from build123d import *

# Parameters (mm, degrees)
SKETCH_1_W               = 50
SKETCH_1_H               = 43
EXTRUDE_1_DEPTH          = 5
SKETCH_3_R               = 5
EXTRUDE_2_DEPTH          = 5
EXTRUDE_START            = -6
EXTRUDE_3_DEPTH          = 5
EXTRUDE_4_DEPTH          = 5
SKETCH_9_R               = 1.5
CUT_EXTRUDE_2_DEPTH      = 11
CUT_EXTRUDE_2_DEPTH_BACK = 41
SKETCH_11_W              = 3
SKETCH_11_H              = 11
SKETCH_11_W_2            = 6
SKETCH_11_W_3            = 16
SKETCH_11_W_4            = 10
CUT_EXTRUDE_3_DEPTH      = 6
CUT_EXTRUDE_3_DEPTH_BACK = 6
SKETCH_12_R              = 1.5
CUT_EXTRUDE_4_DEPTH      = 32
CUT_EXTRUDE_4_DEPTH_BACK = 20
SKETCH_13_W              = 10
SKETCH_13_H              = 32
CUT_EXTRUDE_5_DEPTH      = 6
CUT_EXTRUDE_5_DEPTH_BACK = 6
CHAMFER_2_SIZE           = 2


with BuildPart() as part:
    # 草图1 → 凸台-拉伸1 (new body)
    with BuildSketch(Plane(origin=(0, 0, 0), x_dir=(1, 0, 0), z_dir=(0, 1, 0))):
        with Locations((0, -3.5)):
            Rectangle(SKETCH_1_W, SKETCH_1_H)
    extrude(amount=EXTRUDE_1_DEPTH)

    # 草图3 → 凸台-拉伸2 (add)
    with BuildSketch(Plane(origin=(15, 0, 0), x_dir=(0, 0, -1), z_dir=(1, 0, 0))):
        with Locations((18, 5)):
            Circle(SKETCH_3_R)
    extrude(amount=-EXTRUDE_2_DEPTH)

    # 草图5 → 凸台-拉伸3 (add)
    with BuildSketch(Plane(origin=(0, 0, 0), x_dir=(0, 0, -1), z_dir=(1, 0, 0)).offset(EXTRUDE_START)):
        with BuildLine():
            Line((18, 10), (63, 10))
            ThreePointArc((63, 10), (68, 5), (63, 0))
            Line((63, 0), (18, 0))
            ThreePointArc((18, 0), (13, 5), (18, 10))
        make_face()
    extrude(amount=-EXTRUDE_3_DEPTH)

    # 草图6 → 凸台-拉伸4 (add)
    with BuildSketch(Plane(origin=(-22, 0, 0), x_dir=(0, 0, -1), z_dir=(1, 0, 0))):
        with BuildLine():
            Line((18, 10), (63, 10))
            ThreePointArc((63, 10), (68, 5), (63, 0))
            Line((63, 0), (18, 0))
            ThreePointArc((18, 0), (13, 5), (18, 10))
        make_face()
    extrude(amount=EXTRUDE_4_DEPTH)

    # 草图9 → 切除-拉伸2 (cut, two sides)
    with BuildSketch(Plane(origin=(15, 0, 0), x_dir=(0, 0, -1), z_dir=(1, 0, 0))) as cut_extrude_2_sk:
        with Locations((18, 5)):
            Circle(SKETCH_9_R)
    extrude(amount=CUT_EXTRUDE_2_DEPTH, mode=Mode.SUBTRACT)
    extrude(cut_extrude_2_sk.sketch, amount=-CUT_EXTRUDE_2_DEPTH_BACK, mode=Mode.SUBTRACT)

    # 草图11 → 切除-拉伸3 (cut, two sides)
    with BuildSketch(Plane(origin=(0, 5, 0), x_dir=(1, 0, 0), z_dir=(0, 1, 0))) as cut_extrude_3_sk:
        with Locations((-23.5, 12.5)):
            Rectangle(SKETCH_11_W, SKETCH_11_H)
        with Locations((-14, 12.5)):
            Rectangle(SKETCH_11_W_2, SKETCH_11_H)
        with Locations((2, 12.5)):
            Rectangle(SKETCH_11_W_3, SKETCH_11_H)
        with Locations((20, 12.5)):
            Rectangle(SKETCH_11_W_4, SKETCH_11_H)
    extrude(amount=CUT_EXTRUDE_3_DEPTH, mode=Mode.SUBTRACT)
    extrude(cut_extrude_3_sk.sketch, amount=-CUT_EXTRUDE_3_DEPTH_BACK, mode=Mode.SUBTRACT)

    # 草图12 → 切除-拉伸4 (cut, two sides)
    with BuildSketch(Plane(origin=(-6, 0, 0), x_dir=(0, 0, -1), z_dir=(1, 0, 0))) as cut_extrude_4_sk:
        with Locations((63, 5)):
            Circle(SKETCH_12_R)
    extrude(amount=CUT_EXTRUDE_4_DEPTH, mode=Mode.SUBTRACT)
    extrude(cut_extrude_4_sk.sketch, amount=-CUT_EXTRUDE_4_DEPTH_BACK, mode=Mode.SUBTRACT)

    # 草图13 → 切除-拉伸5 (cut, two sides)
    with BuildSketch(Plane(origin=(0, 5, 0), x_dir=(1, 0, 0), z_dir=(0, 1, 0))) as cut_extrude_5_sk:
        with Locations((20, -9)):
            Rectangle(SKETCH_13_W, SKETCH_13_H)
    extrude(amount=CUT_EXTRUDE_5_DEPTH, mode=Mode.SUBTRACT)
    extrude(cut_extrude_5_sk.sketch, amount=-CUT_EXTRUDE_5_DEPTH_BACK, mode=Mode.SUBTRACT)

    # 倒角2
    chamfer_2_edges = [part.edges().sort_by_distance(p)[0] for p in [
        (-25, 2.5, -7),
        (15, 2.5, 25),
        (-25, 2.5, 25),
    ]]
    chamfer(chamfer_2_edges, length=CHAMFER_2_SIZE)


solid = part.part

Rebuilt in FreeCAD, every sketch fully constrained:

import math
import FreeCAD as App
import Part
import Sketcher
from FreeCAD import Vector
Q = App.Units.Quantity


def edges_at(feature, points):
    """Names of the edges that pass closest to the given points."""
    edges = feature.Shape.Edges
    near = lambda p: min(range(len(edges)), key=lambda i: edges[i].distToShape(Part.Vertex(*p))[0])
    return sorted({f"Edge{near(p) + 1}" for p in points})

doc = App.newDocument("Part")
body = doc.addObject("PartDesign::Body", "Body")

sketch1 = doc.addObject("Sketcher::SketchObject", "Sketch")
body.addObject(sketch1)
sketch1.AttachmentSupport = (doc.XZ_Plane, [""])
sketch1.MapMode = "FlatFace"
sketch1.addGeometry([
    Part.LineSegment(Vector(-25, -18, 0), Vector(-25, 25, 0)),
    Part.LineSegment(Vector(-25, 25, 0), Vector(25, 25, 0)),
    Part.LineSegment(Vector(25, 25, 0), Vector(25, -18, 0)),
    Part.LineSegment(Vector(25, -18, 0), Vector(-25, -18, 0)),
], False)
sketch1.addConstraint([
    Sketcher.Constraint("Coincident", 0, 2, 1, 1),
    Sketcher.Constraint("Coincident", 1, 2, 2, 1),
    Sketcher.Constraint("Coincident", 2, 2, 3, 1),
    Sketcher.Constraint("Coincident", 3, 2, 0, 1),
    Sketcher.Constraint("Vertical", 0),
    Sketcher.Constraint("Horizontal", 1),
    Sketcher.Constraint("Vertical", 2),
    Sketcher.Constraint("Horizontal", 3),
    Sketcher.Constraint("DistanceX", 1, 1, 1, 2, Q("50 mm")),
    Sketcher.Constraint("DistanceY", 0, 1, 0, 2, Q("43 mm")),
    Sketcher.Constraint("DistanceX", 0, 2, -1, 1, Q("25 mm")),
    Sketcher.Constraint("DistanceY", -1, 1, 0, 2, Q("25 mm")),
])
pad1 = doc.addObject("PartDesign::Pad", "Pad")
body.addObject(pad1)
pad1.Profile = sketch1
pad1.Length = 5
pad1.Reversed = True

sketch2 = doc.addObject("Sketcher::SketchObject", "Sketch001")
body.addObject(sketch2)
sketch2.AttachmentSupport = (doc.YZ_Plane, [""])
sketch2.MapMode = "FlatFace"
sketch2.AttachmentOffset = App.Placement(Vector(0, 0, 15), App.Rotation())
sketch2.addGeometry(Part.Circle(Vector(5, -18, 0), Vector(0, 0, 1), 5), False)
sketch2.addConstraint([
    Sketcher.Constraint("Diameter", 0, Q("10 mm")),
    Sketcher.Constraint("DistanceX", -1, 1, 0, 3, Q("5 mm")),
    Sketcher.Constraint("DistanceY", 0, 3, -1, 1, Q("18 mm")),
])
pad2 = doc.addObject("PartDesign::Pad", "Pad001")
body.addObject(pad2)
pad2.Profile = sketch2
pad2.Length = 5
pad2.Reversed = True

sketch3 = doc.addObject("Sketcher::SketchObject", "Sketch002")
body.addObject(sketch3)
sketch3.AttachmentSupport = (doc.YZ_Plane, [""])
sketch3.MapMode = "FlatFace"
sketch3.AttachmentOffset = App.Placement(Vector(0, 0, -6), App.Rotation())
sketch3.addGeometry([
    Part.LineSegment(Vector(10, -63, 0), Vector(10, -18, 0)),
    Part.ArcOfCircle(Part.Circle(Vector(5, -18, 0), Vector(0, 0, 1), 5), math.radians(0), math.radians(180)),
    Part.LineSegment(Vector(0, -18, 0), Vector(0, -63, 0)),
    Part.ArcOfCircle(Part.Circle(Vector(5, -63, 0), Vector(0, 0, 1), 5), math.radians(180), math.radians(360)),
], False)
sketch3.addConstraint([
    Sketcher.Constraint("Tangent", 0, 2, 1, 1),
    Sketcher.Constraint("Tangent", 1, 2, 2, 1),
    Sketcher.Constraint("Tangent", 2, 2, 3, 1),
    Sketcher.Constraint("Tangent", 3, 2, 0, 1),
    Sketcher.Constraint("Vertical", 0),
    Sketcher.Constraint("Vertical", 2),
    Sketcher.Constraint("PointOnObject", 1, 2, -2),
    Sketcher.Constraint("Radius", 1, Q("5 mm")),
    Sketcher.Constraint("DistanceY", 0, 1, 0, 2, Q("45 mm")),
    Sketcher.Constraint("DistanceY", 1, 3, -1, 1, Q("18 mm")),
])
pad3 = doc.addObject("PartDesign::Pad", "Pad002")
body.addObject(pad3)
pad3.Profile = sketch3
pad3.Length = 5
pad3.Reversed = True

sketch4 = doc.addObject("Sketcher::SketchObject", "Sketch003")
body.addObject(sketch4)
sketch4.AttachmentSupport = (doc.YZ_Plane, [""])
sketch4.MapMode = "FlatFace"
sketch4.AttachmentOffset = App.Placement(Vector(0, 0, -22), App.Rotation())
sketch4.addGeometry([
    Part.LineSegment(Vector(10, -63, 0), Vector(10, -18, 0)),
    Part.ArcOfCircle(Part.Circle(Vector(5, -18, 0), Vector(0, 0, 1), 5), math.radians(0), math.radians(180)),
    Part.LineSegment(Vector(0, -18, 0), Vector(0, -63, 0)),
    Part.ArcOfCircle(Part.Circle(Vector(5, -63, 0), Vector(0, 0, 1), 5), math.radians(180), math.radians(360)),
], False)
sketch4.addConstraint([
    Sketcher.Constraint("Tangent", 0, 2, 1, 1),
    Sketcher.Constraint("Tangent", 1, 2, 2, 1),
    Sketcher.Constraint("Tangent", 2, 2, 3, 1),
    Sketcher.Constraint("Tangent", 3, 2, 0, 1),
    Sketcher.Constraint("Vertical", 0),
    Sketcher.Constraint("Vertical", 2),
    Sketcher.Constraint("PointOnObject", 1, 2, -2),
    Sketcher.Constraint("Radius", 1, Q("5 mm")),
    Sketcher.Constraint("DistanceY", 0, 1, 0, 2, Q("45 mm")),
    Sketcher.Constraint("DistanceY", 1, 3, -1, 1, Q("18 mm")),
])
pad4 = doc.addObject("PartDesign::Pad", "Pad003")
body.addObject(pad4)
pad4.Profile = sketch4
pad4.Length = 5

sketch5 = doc.addObject("Sketcher::SketchObject", "Sketch004")
body.addObject(sketch5)
sketch5.AttachmentSupport = (doc.YZ_Plane, [""])
sketch5.MapMode = "FlatFace"
sketch5.AttachmentOffset = App.Placement(Vector(0, 0, 15), App.Rotation())
sketch5.addGeometry(Part.Circle(Vector(5, -18, 0), Vector(0, 0, 1), 1.5), False)
sketch5.addConstraint([
    Sketcher.Constraint("Diameter", 0, Q("3 mm")),
    Sketcher.Constraint("DistanceX", -1, 1, 0, 3, Q("5 mm")),
    Sketcher.Constraint("DistanceY", 0, 3, -1, 1, Q("18 mm")),
])
pocket1 = doc.addObject("PartDesign::Pocket", "Pocket")
body.addObject(pocket1)
pocket1.Profile = sketch5
pocket1.Type = "ThroughAll"
pocket1.Midplane = True

sketch6 = doc.addObject("Sketcher::SketchObject", "Sketch005")
body.addObject(sketch6)
sketch6.AttachmentSupport = (doc.XZ_Plane, [""])
sketch6.MapMode = "FlatFace"
sketch6.AttachmentOffset = App.Placement(Vector(0, 0, -5), App.Rotation())
sketch6.addGeometry([
    Part.LineSegment(Vector(-25, -18, 0), Vector(-25, -7, 0)),
    Part.LineSegment(Vector(-25, -7, 0), Vector(-22, -7, 0)),
    Part.LineSegment(Vector(-22, -7, 0), Vector(-22, -18, 0)),
    Part.LineSegment(Vector(-22, -18, 0), Vector(-25, -18, 0)),
    Part.LineSegment(Vector(-17, -18, 0), Vector(-17, -7, 0)),
    Part.LineSegment(Vector(-17, -7, 0), Vector(-11, -7, 0)),
    Part.LineSegment(Vector(-11, -7, 0), Vector(-11, -18, 0)),
    Part.LineSegment(Vector(-11, -18, 0), Vector(-17, -18, 0)),
    Part.LineSegment(Vector(-6, -18, 0), Vector(-6, -7, 0)),
    Part.LineSegment(Vector(-6, -7, 0), Vector(10, -7, 0)),
    Part.LineSegment(Vector(10, -7, 0), Vector(10, -18, 0)),
    Part.LineSegment(Vector(10, -18, 0), Vector(-6, -18, 0)),
    Part.LineSegment(Vector(15, -18, 0), Vector(15, -7, 0)),
    Part.LineSegment(Vector(15, -7, 0), Vector(25, -7, 0)),
    Part.LineSegment(Vector(25, -7, 0), Vector(25, -18, 0)),
    Part.LineSegment(Vector(25, -18, 0), Vector(15, -18, 0)),
], False)
sketch6.addConstraint([
    Sketcher.Constraint("Coincident", 0, 2, 1, 1),
    Sketcher.Constraint("Coincident", 1, 2, 2, 1),
    Sketcher.Constraint("Coincident", 2, 2, 3, 1),
    Sketcher.Constraint("Coincident", 3, 2, 0, 1),
    Sketcher.Constraint("Coincident", 4, 2, 5, 1),
    Sketcher.Constraint("Coincident", 5, 2, 6, 1),
    Sketcher.Constraint("Coincident", 6, 2, 7, 1),
    Sketcher.Constraint("Coincident", 7, 2, 4, 1),
    Sketcher.Constraint("Coincident", 8, 2, 9, 1),
    Sketcher.Constraint("Coincident", 9, 2, 10, 1),
    Sketcher.Constraint("Coincident", 10, 2, 11, 1),
    Sketcher.Constraint("Coincident", 11, 2, 8, 1),
    Sketcher.Constraint("Coincident", 12, 2, 13, 1),
    Sketcher.Constraint("Coincident", 13, 2, 14, 1),
    Sketcher.Constraint("Coincident", 14, 2, 15, 1),
    Sketcher.Constraint("Coincident", 15, 2, 12, 1),
    Sketcher.Constraint("Vertical", 0),
    Sketcher.Constraint("Horizontal", 1),
    Sketcher.Constraint("Vertical", 2),
    Sketcher.Constraint("Horizontal", 3),
    Sketcher.Constraint("Vertical", 4),
    Sketcher.Constraint("Horizontal", 5),
    Sketcher.Constraint("Vertical", 6),
    Sketcher.Constraint("Horizontal", 7),
    Sketcher.Constraint("Vertical", 8),
    Sketcher.Constraint("Horizontal", 9),
    Sketcher.Constraint("Vertical", 10),
    Sketcher.Constraint("Horizontal", 11),
    Sketcher.Constraint("Vertical", 12),
    Sketcher.Constraint("Horizontal", 13),
    Sketcher.Constraint("Vertical", 14),
    Sketcher.Constraint("Horizontal", 15),
    Sketcher.Constraint("Symmetric", 0, 2, 13, 2, -2),
    Sketcher.Constraint("Horizontal", 1, 2, 4, 2),
    Sketcher.Constraint("Horizontal", 3, 2, 6, 2),
    Sketcher.Constraint("Horizontal", 5, 2, 8, 2),
    Sketcher.Constraint("Horizontal", 7, 2, 10, 2),
    Sketcher.Constraint("Horizontal", 11, 2, 14, 2),
    Sketcher.Constraint("DistanceX", 1, 1, 1, 2, Q("3 mm")),
    Sketcher.Constraint("DistanceX", 5, 1, 5, 2, Q("6 mm")),
    Sketcher.Constraint("DistanceX", 9, 1, 9, 2, Q("16 mm")),
    Sketcher.Constraint("DistanceX", 13, 1, 13, 2, Q("10 mm")),
    Sketcher.Constraint("DistanceY", 0, 1, 0, 2, Q("11 mm")),
    Sketcher.Constraint("DistanceX", 0, 2, -1, 1, Q("25 mm")),
    Sketcher.Constraint("DistanceY", 0, 2, -1, 1, Q("7 mm")),
    Sketcher.Constraint("DistanceX", 4, 2, -1, 1, Q("17 mm")),
    Sketcher.Constraint("DistanceX", 8, 2, -1, 1, Q("6 mm")),
])
pocket2 = doc.addObject("PartDesign::Pocket", "Pocket001")
body.addObject(pocket2)
pocket2.Profile = sketch6
pocket2.Type = "ThroughAll"
pocket2.Midplane = True

sketch7 = doc.addObject("Sketcher::SketchObject", "Sketch006")
body.addObject(sketch7)
sketch7.AttachmentSupport = (doc.YZ_Plane, [""])
sketch7.MapMode = "FlatFace"
sketch7.AttachmentOffset = App.Placement(Vector(0, 0, -6), App.Rotation())
sketch7.addGeometry(Part.Circle(Vector(5, -63, 0), Vector(0, 0, 1), 1.5), False)
sketch7.addConstraint([
    Sketcher.Constraint("Diameter", 0, Q("3 mm")),
    Sketcher.Constraint("DistanceX", -1, 1, 0, 3, Q("5 mm")),
    Sketcher.Constraint("DistanceY", 0, 3, -1, 1, Q("63 mm")),
])
pocket3 = doc.addObject("PartDesign::Pocket", "Pocket002")
body.addObject(pocket3)
pocket3.Profile = sketch7
pocket3.Type = "ThroughAll"
pocket3.Midplane = True

sketch8 = doc.addObject("Sketcher::SketchObject", "Sketch007")
body.addObject(sketch8)
sketch8.AttachmentSupport = (doc.XZ_Plane, [""])
sketch8.MapMode = "FlatFace"
sketch8.AttachmentOffset = App.Placement(Vector(0, 0, -5), App.Rotation())
sketch8.addGeometry([
    Part.LineSegment(Vector(15, -7, 0), Vector(15, 25, 0)),
    Part.LineSegment(Vector(15, 25, 0), Vector(25, 25, 0)),
    Part.LineSegment(Vector(25, 25, 0), Vector(25, -7, 0)),
    Part.LineSegment(Vector(25, -7, 0), Vector(15, -7, 0)),
], False)
sketch8.addConstraint([
    Sketcher.Constraint("Coincident", 0, 2, 1, 1),
    Sketcher.Constraint("Coincident", 1, 2, 2, 1),
    Sketcher.Constraint("Coincident", 2, 2, 3, 1),
    Sketcher.Constraint("Coincident", 3, 2, 0, 1),
    Sketcher.Constraint("Vertical", 0),
    Sketcher.Constraint("Horizontal", 1),
    Sketcher.Constraint("Vertical", 2),
    Sketcher.Constraint("Horizontal", 3),
    Sketcher.Constraint("DistanceX", 1, 1, 1, 2, Q("10 mm")),
    Sketcher.Constraint("DistanceY", 0, 1, 0, 2, Q("32 mm")),
    Sketcher.Constraint("DistanceX", -1, 1, 0, 2, Q("15 mm")),
    Sketcher.Constraint("DistanceY", -1, 1, 0, 2, Q("25 mm")),
])
pocket4 = doc.addObject("PartDesign::Pocket", "Pocket003")
body.addObject(pocket4)
pocket4.Profile = sketch8
pocket4.Type = "ThroughAll"
pocket4.Midplane = True
doc.recompute()

chamfer = doc.addObject("PartDesign::Chamfer", "Chamfer")
body.addObject(chamfer)
chamfer.Base = (pocket4, edges_at(pocket4, [(-25, 2.5, -7), (15, 2.5, 25), (-25, 2.5, 25)]))
chamfer.Size = 2

doc.recompute()
